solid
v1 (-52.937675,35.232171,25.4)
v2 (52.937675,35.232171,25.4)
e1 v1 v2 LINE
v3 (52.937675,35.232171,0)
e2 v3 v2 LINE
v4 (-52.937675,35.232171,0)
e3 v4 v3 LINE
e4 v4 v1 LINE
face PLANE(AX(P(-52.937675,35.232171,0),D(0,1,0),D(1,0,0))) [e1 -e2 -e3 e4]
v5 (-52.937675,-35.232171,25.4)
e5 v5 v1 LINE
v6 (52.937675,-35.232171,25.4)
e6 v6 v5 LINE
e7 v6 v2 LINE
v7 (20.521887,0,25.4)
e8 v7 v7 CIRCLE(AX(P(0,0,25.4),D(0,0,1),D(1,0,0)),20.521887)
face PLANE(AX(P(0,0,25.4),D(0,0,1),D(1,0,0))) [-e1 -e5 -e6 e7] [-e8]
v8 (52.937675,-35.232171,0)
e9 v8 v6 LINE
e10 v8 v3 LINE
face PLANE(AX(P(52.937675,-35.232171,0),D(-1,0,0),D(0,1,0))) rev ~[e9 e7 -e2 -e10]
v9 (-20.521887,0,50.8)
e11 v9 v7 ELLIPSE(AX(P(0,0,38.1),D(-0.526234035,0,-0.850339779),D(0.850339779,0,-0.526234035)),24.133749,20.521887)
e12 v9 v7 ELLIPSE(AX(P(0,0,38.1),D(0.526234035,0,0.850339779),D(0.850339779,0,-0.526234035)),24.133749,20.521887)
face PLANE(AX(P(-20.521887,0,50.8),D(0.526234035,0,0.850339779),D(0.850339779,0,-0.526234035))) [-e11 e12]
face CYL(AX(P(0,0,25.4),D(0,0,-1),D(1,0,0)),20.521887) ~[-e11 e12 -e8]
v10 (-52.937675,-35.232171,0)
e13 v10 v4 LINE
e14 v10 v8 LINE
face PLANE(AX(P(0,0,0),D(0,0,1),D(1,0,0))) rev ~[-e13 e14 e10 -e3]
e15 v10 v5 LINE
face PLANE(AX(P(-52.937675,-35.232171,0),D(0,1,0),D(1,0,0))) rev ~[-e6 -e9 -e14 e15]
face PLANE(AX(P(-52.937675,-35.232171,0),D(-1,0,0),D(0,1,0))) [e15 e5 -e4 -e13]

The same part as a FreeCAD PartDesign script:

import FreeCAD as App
import Part
import Sketcher
from FreeCAD import Vector
Q = App.Units.Quantity


def add_polygon(sketch, points):
    """Adds a closed chain of lines whose ends are joined by coincident constraints."""
    first, n = sketch.GeometryCount, len(points)
    for a, b in zip(points, points[1:] + points[:1]):
        sketch.addGeometry(Part.LineSegment(App.Vector(*a, 0), App.Vector(*b, 0)), False)
    for i in range(n):
        sketch.addConstraint(Sketcher.Constraint("Coincident", first + i, 2, first + (i + 1) % n, 1))

doc = App.newDocument("Part")
body = doc.addObject("PartDesign::Body", "Body")

sketch1 = doc.addObject("Sketcher::SketchObject", "Sketch")
body.addObject(sketch1)
sketch1.AttachmentSupport = (doc.XY_Plane, [""])
sketch1.MapMode = "FlatFace"
add_polygon(sketch1, [(-52.937675, 35.232171), (-52.937675, -35.232171), (52.937675, -35.232171), (52.937675, 35.232171)])
sketch1.addConstraint(Sketcher.Constraint("Vertical", 0))
sketch1.addConstraint(Sketcher.Constraint("Horizontal", 1))
sketch1.addConstraint(Sketcher.Constraint("Vertical", 2))
sketch1.addConstraint(Sketcher.Constraint("Horizontal", 3))
sketch1.addConstraint(Sketcher.Constraint("Symmetric", 0, 2, 2, 2, -1, 1))
sketch1.addConstraint(Sketcher.Constraint("DistanceX", 1, 1, 1, 2, Q("105.875351 mm")))
sketch1.addConstraint(Sketcher.Constraint("DistanceY", 0, 2, 0, 1, Q("70.464343 mm")))
pad1 = doc.addObject("PartDesign::Pad", "Pad")
body.addObject(pad1)
pad1.Profile = sketch1
pad1.Length = Q("1 in")

sketch2 = doc.addObject("Sketcher::SketchObject", "Sketch001")
body.addObject(sketch2)
sketch2.AttachmentSupport = (doc.XY_Plane, [""])
sketch2.MapMode = "FlatFace"
sketch2.AttachmentOffset = App.Placement(Vector(0, 0, 1 * 25.4), App.Rotation())
sketch2.addGeometry(Part.Circle(Vector(0, 0, 0), Vector(0, 0, 1), 20.521887), False)
sketch2.addConstraint(Sketcher.Constraint("Coincident", 0, 3, -1, 1))
sketch2.addConstraint(Sketcher.Constraint("Diameter", 0, Q("41.043773 mm")))
pad2 = doc.addObject("PartDesign::Pad", "Pad001")
body.addObject(pad2)
pad2.Profile = sketch2
pad2.Length = Q("1 in")

sketch3 = doc.addObject("Sketcher::SketchObject", "Sketch002")
body.addObject(sketch3)
sketch3.AttachmentSupport = (doc.XZ_Plane, [""])
sketch3.MapMode = "FlatFace"
add_polygon(sketch3, [(20.521887, 50.8), (-20.521887, 50.8), (20.521887, 25.4)])
sketch3.addConstraint(Sketcher.Constraint("Horizontal", 0))
sketch3.addConstraint(Sketcher.Constraint("Vertical", 2))
sketch3.addConstraint(Sketcher.Constraint("DistanceY", 2, 1, 2, 2, Q("1 in")))
sketch3.addConstraint(Sketcher.Constraint("DistanceY", -1, 1, 0, 2, Q("2 in")))
sketch3.addConstraint(Sketcher.Constraint("DistanceX", 0, 2, 0, 1, Q("41.043773 mm")))
sketch3.addConstraint(Sketcher.Constraint("DistanceX", 0, 2, -1, 1, Q("20.521887 mm")))
pocket1 = doc.addObject("PartDesign::Pocket", "Pocket")
body.addObject(pocket1)
pocket1.Profile = sketch3
pocket1.Type = "ThroughAll"
pocket1.Midplane = True

doc.recompute()
